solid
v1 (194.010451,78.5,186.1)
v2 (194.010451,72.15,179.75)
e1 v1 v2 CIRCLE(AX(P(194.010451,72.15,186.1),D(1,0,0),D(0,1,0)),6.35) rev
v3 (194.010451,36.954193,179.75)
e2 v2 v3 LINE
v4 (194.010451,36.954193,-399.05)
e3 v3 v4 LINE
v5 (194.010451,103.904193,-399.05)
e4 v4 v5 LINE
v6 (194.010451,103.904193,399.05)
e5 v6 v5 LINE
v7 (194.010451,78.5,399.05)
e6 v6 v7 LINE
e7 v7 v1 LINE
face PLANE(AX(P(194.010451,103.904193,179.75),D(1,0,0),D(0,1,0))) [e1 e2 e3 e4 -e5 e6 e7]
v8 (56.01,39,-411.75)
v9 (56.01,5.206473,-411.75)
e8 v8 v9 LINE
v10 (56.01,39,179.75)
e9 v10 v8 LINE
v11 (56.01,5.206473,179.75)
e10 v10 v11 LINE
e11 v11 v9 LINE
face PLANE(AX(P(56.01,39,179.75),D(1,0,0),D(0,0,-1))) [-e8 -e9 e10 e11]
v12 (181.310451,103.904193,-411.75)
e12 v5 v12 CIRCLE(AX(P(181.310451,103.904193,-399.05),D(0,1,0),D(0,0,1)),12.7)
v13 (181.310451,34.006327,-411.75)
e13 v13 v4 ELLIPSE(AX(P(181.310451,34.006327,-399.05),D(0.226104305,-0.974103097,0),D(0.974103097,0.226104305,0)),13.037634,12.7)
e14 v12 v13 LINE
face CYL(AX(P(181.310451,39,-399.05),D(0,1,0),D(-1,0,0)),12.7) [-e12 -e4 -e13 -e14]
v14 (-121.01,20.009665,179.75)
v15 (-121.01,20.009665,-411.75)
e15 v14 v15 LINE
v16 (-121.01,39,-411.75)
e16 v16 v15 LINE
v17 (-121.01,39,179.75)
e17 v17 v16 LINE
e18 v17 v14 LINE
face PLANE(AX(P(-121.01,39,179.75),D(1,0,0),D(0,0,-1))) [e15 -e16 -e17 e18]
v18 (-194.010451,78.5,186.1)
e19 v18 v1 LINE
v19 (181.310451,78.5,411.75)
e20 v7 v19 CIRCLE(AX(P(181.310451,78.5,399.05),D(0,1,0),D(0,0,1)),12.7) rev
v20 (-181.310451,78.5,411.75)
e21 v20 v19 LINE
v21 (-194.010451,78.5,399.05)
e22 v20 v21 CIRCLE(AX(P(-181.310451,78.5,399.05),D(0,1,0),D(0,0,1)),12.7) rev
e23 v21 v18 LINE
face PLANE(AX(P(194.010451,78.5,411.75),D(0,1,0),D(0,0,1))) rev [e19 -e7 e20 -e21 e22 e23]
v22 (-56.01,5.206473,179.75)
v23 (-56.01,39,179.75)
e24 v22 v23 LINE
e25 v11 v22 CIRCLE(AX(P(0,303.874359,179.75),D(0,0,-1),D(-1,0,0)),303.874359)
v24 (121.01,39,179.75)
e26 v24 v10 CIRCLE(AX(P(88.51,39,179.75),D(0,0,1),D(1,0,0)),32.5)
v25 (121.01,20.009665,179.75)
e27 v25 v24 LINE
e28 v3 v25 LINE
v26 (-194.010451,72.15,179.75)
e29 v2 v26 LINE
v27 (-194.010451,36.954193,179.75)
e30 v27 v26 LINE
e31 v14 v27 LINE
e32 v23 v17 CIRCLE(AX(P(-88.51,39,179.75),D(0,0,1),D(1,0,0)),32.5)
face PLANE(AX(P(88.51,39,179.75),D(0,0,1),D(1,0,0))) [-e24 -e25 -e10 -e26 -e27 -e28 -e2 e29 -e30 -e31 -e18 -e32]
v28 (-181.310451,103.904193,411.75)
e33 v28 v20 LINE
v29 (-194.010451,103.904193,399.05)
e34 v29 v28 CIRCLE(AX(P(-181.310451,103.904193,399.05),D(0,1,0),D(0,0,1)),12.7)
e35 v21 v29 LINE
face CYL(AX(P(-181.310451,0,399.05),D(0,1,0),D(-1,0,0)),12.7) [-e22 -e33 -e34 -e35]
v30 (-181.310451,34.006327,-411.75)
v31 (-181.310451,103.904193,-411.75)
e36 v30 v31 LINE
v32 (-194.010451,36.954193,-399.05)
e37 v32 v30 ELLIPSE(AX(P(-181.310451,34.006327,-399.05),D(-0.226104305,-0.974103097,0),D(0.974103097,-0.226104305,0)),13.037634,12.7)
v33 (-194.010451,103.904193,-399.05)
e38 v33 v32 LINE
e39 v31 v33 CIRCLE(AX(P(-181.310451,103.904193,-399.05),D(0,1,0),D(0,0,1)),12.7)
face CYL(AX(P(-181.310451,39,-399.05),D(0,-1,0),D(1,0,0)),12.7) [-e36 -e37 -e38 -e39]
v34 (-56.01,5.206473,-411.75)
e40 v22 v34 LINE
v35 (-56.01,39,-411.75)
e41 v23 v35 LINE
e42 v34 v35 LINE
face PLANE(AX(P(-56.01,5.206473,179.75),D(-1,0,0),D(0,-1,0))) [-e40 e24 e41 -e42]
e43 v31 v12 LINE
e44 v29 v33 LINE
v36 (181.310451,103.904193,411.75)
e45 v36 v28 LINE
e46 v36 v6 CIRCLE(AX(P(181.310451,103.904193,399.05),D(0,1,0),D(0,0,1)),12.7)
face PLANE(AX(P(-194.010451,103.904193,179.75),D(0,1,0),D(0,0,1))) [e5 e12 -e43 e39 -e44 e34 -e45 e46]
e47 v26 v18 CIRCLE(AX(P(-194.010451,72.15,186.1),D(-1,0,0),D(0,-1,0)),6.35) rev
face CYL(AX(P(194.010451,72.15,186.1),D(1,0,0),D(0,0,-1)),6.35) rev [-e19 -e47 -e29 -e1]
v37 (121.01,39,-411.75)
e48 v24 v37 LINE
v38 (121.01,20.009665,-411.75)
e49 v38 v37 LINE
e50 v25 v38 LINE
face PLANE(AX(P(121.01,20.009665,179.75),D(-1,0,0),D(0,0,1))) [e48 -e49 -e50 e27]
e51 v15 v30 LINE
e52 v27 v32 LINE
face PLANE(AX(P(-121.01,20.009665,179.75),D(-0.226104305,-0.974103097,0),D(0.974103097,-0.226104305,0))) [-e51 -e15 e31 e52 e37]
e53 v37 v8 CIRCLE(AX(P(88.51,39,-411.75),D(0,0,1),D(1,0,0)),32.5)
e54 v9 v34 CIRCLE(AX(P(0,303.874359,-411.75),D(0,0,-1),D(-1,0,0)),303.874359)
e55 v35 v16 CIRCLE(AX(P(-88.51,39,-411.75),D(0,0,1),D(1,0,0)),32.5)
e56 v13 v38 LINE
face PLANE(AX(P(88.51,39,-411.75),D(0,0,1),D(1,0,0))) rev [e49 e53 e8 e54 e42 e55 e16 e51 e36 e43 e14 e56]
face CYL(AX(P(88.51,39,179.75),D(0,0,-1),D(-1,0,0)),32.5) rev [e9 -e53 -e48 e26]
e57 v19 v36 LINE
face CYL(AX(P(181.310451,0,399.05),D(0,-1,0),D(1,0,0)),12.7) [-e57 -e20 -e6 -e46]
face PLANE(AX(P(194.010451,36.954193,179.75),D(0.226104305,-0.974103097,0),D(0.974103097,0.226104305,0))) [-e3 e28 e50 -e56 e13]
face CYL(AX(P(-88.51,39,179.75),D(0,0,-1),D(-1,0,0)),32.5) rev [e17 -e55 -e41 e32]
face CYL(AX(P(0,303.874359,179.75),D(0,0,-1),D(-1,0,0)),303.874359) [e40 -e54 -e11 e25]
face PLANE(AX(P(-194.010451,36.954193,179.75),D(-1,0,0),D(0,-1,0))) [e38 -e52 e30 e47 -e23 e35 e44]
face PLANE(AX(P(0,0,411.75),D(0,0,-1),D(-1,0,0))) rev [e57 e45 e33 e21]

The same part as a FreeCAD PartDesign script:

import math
import FreeCAD as App
import Part
import Sketcher

V = App.Vector


def edges_at(feature, points):
    """Names of the edges that pass closest to the given points."""
    edges = feature.Shape.Edges
    near = lambda p: min(range(len(edges)), key=lambda i: edges[i].distToShape(Part.Vertex(*p))[0])
    return sorted({f"Edge{near(p) + 1}" for p in points})

doc = App.newDocument("Part")
body = doc.addObject("PartDesign::Body", "Body")

sketch1 = body.newObject("Sketcher::SketchObject", "Sketch")
sketch1.AttachmentSupport = (doc.getObject("XY_Plane"), [""])
sketch1.MapMode = "FlatFace"
sketch1.AttachmentOffset = App.Placement(V(0, 0, -411.75), App.Rotation())
sketch1.addGeometry([
    Part.LineSegment(V(-121.01, 20.009665, 0), V(-194.010451, 36.954193, 0)),
    Part.LineSegment(V(-194.010451, 36.954193, 0), V(-194.010451, 103.904193, 0)),
    Part.LineSegment(V(-194.010451, 103.904193, 0), V(194.010451, 103.904193, 0)),
    Part.LineSegment(V(194.010451, 103.904193, 0), V(194.010451, 36.954193, 0)),
    Part.LineSegment(V(194.010451, 36.954193, 0), V(121.01, 20.009665, 0)),
    Part.LineSegment(V(121.01, 20.009665, 0), V(121.01, 39, 0)),
    Part.ArcOfCircle(Part.Circle(V(88.51, 39, 0), V(0, 0, 1), 32.5), math.radians(0), math.radians(180)),
    Part.LineSegment(V(56.01, 39, 0), V(56.01, 5.206473, 0)),
    Part.ArcOfCircle(Part.Circle(V(0, 303.874359, 0), V(0, 0, 1), 303.874359), math.radians(-100.621466), math.radians(-79.378534)),
    Part.LineSegment(V(-56.01, 5.206473, 0), V(-56.01, 39, 0)),
    Part.ArcOfCircle(Part.Circle(V(-88.51, 39, 0), V(0, 0, 1), 32.5), math.radians(0), math.radians(180)),
    Part.LineSegment(V(-121.01, 39, 0), V(-121.01, 20.009665, 0)),
], False)
sketch1.addConstraint([
    Sketcher.Constraint("Coincident", 0, 2, 1, 1),
    Sketcher.Constraint("Coincident", 1, 2, 2, 1),
    Sketcher.Constraint("Coincident", 2, 2, 3, 1),
    Sketcher.Constraint("Coincident", 3, 2, 4, 1),
    Sketcher.Constraint("Coincident", 4, 2, 5, 1),
    Sketcher.Constraint("Tangent", 5, 2, 6, 1),
    Sketcher.Constraint("Tangent", 6, 2, 7, 1),
    Sketcher.Constraint("Coincident", 7, 2, 8, 2),
    Sketcher.Constraint("Coincident", 8, 1, 9, 1),
    Sketcher.Constraint("Tangent", 9, 2, 10, 1),
    Sketcher.Constraint("Tangent", 10, 2, 11, 1),
    Sketcher.Constraint("Coincident", 11, 2, 0, 1),
    Sketcher.Constraint("Vertical", 1),
    Sketcher.Constraint("Horizontal", 2),
    Sketcher.Constraint("Vertical", 3),
    Sketcher.Constraint("Vertical", 5),
    Sketcher.Constraint("Vertical", 7),
    Sketcher.Constraint("Vertical", 9),
    Sketcher.Constraint("Vertical", 11),
    Sketcher.Constraint("Equal", 6, 10),
    Sketcher.Constraint("Symmetric", 6, 3, 10, 3, -2),
    Sketcher.Constraint("Symmetric", 0, 2, 3, 2, -2),
    Sketcher.Constraint("PointOnObject", 8, 3, -2),
    Sketcher.Constraint("Horizontal", 4, 2, 11, 2),
    Sketcher.Constraint("Radius", 6, 32.5),
    Sketcher.Constraint("DistanceY", -1, 1, 6, 3, 39.0),
    Sketcher.Constraint("DistanceY", 1, 1, 1, 2, 66.95),
    Sketcher.Constraint("DistanceX", -1, 1, 6, 3, 88.51),
    Sketcher.Constraint("Radius", 8, 303.874359),
    Sketcher.Constraint("DistanceX", 2, 1, 2, 2, 388.020902),
    Sketcher.Constraint("DistanceY", 5, 1, 5, 2, 18.990335),
    Sketcher.Constraint("DistanceY", 7, 2, 7, 1, 33.793527),
    Sketcher.Constraint("DistanceY", 7, 2, 3, 2, 31.747719),
])
pad1 = body.newObject("PartDesign::Pad", "Pad")
pad1.Profile = sketch1
pad1.Length = 591.5

sketch2 = body.newObject("Sketcher::SketchObject", "Sketch001")
sketch2.AttachmentSupport = (doc.getObject("XY_Plane"), [""])
sketch2.MapMode = "FlatFace"
sketch2.AttachmentOffset = App.Placement(V(0, 0, 179.75), App.Rotation())
sketch2.addGeometry([
    Part.LineSegment(V(-194.010451, 103.904193, 0), V(-194.010451, 78.5, 0)),
    Part.LineSegment(V(-194.010451, 78.5, 0), V(194.010451, 78.5, 0)),
    Part.LineSegment(V(194.010451, 78.5, 0), V(194.010451, 103.904193, 0)),
    Part.LineSegment(V(194.010451, 103.904193, 0), V(-194.010451, 103.904193, 0)),
], False)
sketch2.addConstraint([
    Sketcher.Constraint("Coincident", 0, 2, 1, 1),
    Sketcher.Constraint("Coincident", 1, 2, 2, 1),
    Sketcher.Constraint("Coincident", 2, 2, 3, 1),
    Sketcher.Constraint("Coincident", 3, 2, 0, 1),
    Sketcher.Constraint("Vertical", 0),
    Sketcher.Constraint("Horizontal", 1),
    Sketcher.Constraint("Vertical", 2),
    Sketcher.Constraint("Horizontal", 3),
    Sketcher.Constraint("DistanceY", -1, 1, 0, 2, 78.5),
    Sketcher.Constraint("DistanceX", 1, 1, 1, 2, 388.020902),
    Sketcher.Constraint("DistanceY", 0, 2, 0, 1, 25.404193),
    Sketcher.Constraint("DistanceX", 0, 2, -1, 1, 194.010451),
])
pad2 = body.newObject("PartDesign::Pad", "Pad001")
pad2.Profile = sketch2
pad2.Length = 232
doc.recompute()

fillet = body.newObject("PartDesign::Fillet", "Fillet")
fillet.Base = (pad2, edges_at(pad2, [
    (194.01, 70.429, -411.75),
    (-194.01, 70.429, -411.75),
    (194.01, 91.202, 411.75),
    (-194.01, 91.202, 411.75),
]))
fillet.Radius = 12.7
doc.recompute()

fillet2 = body.newObject("PartDesign::Fillet", "Fillet001")
fillet2.Base = (fillet, edges_at(fillet, [(0, 78.5, 179.75)]))
fillet2.Radius = 6.35

doc.recompute()
